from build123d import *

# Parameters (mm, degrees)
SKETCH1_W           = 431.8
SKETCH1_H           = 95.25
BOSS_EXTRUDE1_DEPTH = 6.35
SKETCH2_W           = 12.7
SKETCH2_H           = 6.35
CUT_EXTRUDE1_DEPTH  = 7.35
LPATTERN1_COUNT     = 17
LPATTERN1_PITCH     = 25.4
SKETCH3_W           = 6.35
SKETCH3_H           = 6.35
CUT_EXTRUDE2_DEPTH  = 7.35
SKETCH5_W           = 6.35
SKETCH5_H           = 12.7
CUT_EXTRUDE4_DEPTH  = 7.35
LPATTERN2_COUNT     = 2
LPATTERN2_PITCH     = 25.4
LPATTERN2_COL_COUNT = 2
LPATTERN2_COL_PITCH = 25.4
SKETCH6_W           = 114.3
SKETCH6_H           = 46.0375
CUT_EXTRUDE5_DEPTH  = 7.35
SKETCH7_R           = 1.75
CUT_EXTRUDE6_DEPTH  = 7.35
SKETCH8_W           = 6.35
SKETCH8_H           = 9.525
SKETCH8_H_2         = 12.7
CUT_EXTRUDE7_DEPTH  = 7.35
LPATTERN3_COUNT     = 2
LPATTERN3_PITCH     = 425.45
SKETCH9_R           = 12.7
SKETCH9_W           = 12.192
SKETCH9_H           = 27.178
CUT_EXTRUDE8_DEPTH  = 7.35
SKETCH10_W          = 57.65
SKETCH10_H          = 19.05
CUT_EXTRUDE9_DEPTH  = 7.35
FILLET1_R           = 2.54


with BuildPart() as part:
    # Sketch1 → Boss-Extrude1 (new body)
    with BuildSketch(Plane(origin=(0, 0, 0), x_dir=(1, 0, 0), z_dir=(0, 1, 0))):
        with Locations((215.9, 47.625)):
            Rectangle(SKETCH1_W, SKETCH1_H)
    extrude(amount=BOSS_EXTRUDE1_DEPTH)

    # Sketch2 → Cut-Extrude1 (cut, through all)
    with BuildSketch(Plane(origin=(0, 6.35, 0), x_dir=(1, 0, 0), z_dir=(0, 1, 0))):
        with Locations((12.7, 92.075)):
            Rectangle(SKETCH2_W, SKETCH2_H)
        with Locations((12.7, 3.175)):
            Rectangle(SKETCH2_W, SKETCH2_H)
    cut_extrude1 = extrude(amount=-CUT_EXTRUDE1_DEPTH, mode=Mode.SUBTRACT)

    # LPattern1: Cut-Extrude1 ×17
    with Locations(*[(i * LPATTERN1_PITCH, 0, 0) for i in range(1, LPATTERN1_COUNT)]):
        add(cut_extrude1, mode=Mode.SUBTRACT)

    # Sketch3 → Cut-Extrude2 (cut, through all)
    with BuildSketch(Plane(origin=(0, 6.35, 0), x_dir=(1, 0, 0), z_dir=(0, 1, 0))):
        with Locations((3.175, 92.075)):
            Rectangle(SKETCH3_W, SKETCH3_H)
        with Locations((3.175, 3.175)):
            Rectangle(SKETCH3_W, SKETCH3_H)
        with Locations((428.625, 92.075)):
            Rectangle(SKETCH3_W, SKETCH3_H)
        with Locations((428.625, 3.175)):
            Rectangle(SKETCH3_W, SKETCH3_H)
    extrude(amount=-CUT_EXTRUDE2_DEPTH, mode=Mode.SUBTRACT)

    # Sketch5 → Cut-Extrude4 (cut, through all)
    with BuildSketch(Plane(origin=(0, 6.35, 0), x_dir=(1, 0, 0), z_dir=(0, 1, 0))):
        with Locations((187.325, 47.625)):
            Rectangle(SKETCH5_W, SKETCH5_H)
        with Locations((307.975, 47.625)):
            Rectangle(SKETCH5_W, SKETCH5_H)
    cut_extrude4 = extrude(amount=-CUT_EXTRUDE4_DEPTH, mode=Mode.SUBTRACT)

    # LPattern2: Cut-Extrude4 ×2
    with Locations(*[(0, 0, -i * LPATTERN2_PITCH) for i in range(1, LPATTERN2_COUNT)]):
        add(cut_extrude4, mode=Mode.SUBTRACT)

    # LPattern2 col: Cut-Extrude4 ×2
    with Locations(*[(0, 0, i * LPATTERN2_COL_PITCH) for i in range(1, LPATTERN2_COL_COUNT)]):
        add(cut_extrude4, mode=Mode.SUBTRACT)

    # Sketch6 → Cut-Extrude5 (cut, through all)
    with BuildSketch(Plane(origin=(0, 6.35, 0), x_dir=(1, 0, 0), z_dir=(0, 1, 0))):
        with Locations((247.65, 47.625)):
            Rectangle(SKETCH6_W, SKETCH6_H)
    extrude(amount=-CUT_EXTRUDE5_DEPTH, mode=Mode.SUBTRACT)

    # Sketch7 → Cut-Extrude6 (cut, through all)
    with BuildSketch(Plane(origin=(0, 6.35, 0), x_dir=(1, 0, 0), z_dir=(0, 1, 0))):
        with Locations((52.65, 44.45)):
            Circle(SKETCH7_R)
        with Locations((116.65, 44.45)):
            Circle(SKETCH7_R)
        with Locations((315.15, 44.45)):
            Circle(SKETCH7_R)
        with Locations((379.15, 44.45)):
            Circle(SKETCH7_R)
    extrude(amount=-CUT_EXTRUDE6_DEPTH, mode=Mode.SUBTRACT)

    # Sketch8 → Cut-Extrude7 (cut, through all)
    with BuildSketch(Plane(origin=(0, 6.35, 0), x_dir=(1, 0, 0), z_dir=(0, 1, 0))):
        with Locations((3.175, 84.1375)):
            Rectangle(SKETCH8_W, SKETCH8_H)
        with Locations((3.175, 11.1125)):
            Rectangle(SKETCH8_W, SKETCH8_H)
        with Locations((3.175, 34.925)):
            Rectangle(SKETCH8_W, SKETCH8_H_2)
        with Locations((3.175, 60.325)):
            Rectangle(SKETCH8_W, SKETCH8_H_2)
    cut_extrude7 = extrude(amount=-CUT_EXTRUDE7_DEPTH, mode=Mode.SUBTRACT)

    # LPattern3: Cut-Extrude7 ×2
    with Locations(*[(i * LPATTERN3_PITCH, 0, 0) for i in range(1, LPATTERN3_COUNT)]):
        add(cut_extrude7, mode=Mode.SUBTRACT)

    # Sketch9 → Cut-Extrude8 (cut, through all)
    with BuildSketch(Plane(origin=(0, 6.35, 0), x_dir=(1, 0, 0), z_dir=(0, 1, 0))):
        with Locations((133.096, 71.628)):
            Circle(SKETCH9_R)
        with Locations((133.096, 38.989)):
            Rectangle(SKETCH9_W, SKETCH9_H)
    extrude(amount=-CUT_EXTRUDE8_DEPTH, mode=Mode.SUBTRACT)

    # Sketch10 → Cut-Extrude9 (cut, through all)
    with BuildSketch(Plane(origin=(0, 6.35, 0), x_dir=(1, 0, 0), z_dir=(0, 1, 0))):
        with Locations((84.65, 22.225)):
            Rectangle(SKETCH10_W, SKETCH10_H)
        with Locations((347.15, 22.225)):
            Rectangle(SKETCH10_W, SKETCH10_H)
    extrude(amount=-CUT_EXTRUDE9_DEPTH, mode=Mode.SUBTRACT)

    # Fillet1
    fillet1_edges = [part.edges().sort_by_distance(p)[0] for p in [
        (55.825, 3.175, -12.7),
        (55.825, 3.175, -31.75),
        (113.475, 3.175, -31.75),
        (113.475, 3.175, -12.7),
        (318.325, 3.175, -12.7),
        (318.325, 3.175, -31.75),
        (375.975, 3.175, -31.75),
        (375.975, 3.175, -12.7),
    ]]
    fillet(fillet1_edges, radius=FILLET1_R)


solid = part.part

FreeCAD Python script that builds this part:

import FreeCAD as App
import Part
import Sketcher

V = App.Vector
Q = App.Units.Quantity


def edges_at(feature, points):
    """Names of the edges that pass closest to the given points."""
    edges = feature.Shape.Edges
    near = lambda p: min(range(len(edges)), key=lambda i: edges[i].distToShape(Part.Vertex(*p))[0])
    return sorted({f"Edge{near(p) + 1}" for p in points})


def add_polygon(sketch, points):
    """Adds a closed chain of lines whose ends are joined by coincident constraints."""
    first, n = sketch.GeometryCount, len(points)
    for a, b in zip(points, points[1:] + points[:1]):
        sketch.addGeometry(Part.LineSegment(App.Vector(*a, 0), App.Vector(*b, 0)), False)
    for i in range(n):
        sketch.addConstraint(Sketcher.Constraint("Coincident", first + i, 2, first + (i + 1) % n, 1))

doc = App.newDocument("Part")
body = doc.addObject("PartDesign::Body", "Body")

# Sketch on XZ plane
sketch1 = body.newObject("Sketcher::SketchObject", "Sketch")
sketch1.AttachmentSupport = (doc.getObject("XZ_Plane"), [""])
sketch1.MapMode = "FlatFace"
add_polygon(sketch1, [(0, -95), (0, 0), (432, 0), (432, -95)])  # lines 0-3
sketch1.addConstraint(Sketcher.Constraint("Vertical", 0))
sketch1.addConstraint(Sketcher.Constraint("Horizontal", 1))
sketch1.addConstraint(Sketcher.Constraint("Vertical", 2))
sketch1.addConstraint(Sketcher.Constraint("Horizontal", 3))
sketch1.addConstraint(Sketcher.Constraint("Coincident", 0, 2, -1, 1))
sketch1.addConstraint(Sketcher.Constraint("DistanceX", 1, 1, 1, 2, Q("17 in")))
sketch1.addConstraint(Sketcher.Constraint("DistanceY", 0, 1, 0, 2, Q("3.75 in")))
pad1 = body.newObject("PartDesign::Pad", "Pad")
pad1.Profile = sketch1
pad1.Length = Q("0.25 in")
pad1.Reversed = True

# Sketch on XZ plane
sketch2 = body.newObject("Sketcher::SketchObject", "Sketch001")
sketch2.AttachmentSupport = (doc.getObject("XZ_Plane"), [""])
sketch2.MapMode = "FlatFace"
sketch2.AttachmentOffset = App.Placement(V(0, 0, -0.25 * 25.4), App.Rotation())
add_polygon(sketch2, [(6, -95), (6, -89), (19, -89), (19, -95)])  # lines 0-3
add_polygon(sketch2, [(6, -6), (6, 0), (19, 0), (19, -6)])  # lines 4-7
sketch2.addConstraint(Sketcher.Constraint("Vertical", 0))
sketch2.addConstraint(Sketcher.Constraint("Horizontal", 1))
sketch2.addConstraint(Sketcher.Constraint("Vertical", 2))
sketch2.addConstraint(Sketcher.Constraint("Horizontal", 3))
sketch2.addConstraint(Sketcher.Constraint("Vertical", 4))
sketch2.addConstraint(Sketcher.Constraint("Horizontal", 5))
sketch2.addConstraint(Sketcher.Constraint("Vertical", 6))
sketch2.addConstraint(Sketcher.Constraint("Horizontal", 7))
sketch2.addConstraint(Sketcher.Constraint("PointOnObject", 4, 2, -1))
sketch2.addConstraint(Sketcher.Constraint("Vertical", 3, 2, 4, 2))
sketch2.addConstraint(Sketcher.Constraint("Vertical", 2, 2, 5, 2))
sketch2.addConstraint(Sketcher.Constraint("Equal", 2, 4))
sketch2.addConstraint(Sketcher.Constraint("DistanceX", 1, 1, 1, 2, Q("0.5 in")))
sketch2.addConstraint(Sketcher.Constraint("DistanceY", 0, 1, 0, 2, Q("0.25 in")))
sketch2.addConstraint(Sketcher.Constraint("DistanceY", 0, 2, -1, 1, Q("3.5 in")))
sketch2.addConstraint(Sketcher.Constraint("DistanceX", -1, 1, 0, 2, Q("0.25 in")))
pocket1 = body.newObject("PartDesign::Pocket", "Pocket")
pocket1.Profile = sketch2
pocket1.Type = "ThroughAll"
pocket1.Reversed = True
doc.recompute()

linearpattern = body.newObject("PartDesign::LinearPattern", "LinearPattern")
linearpattern.Originals = [pocket1]
linearpattern.Direction = (doc.getObject("X_Axis"), [""])
linearpattern.Mode = "offset"
linearpattern.Offset = Q("1 in")
linearpattern.Occurrences = 17
body.Tip = linearpattern

# Sketch on XZ plane
sketch3 = body.newObject("Sketcher::SketchObject", "Sketch002")
sketch3.AttachmentSupport = (doc.getObject("XZ_Plane"), [""])
sketch3.MapMode = "FlatFace"
sketch3.AttachmentOffset = App.Placement(V(0, 0, -0.25 * 25.4), App.Rotation())
add_polygon(sketch3, [(0, -95), (0, -89), (6, -89), (6, -95)])  # lines 0-3
add_polygon(sketch3, [(0, -6), (0, 0), (6, 0), (6, -6)])  # lines 4-7
add_polygon(sketch3, [(425, -95), (425, -89), (432, -89), (432, -95)])  # lines 8-11
add_polygon(sketch3, [(425, -6), (425, 0), (432, 0), (432, -6)])  # lines 12-15
sketch3.addConstraint(Sketcher.Constraint("Vertical", 0))
sketch3.addConstraint(Sketcher.Constraint("Horizontal", 1))
sketch3.addConstraint(Sketcher.Constraint("Vertical", 2))
sketch3.addConstraint(Sketcher.Constraint("Horizontal", 3))
sketch3.addConstraint(Sketcher.Constraint("Vertical", 4))
sketch3.addConstraint(Sketcher.Constraint("Horizontal", 5))
sketch3.addConstraint(Sketcher.Constraint("Vertical", 6))
sketch3.addConstraint(Sketcher.Constraint("Horizontal", 7))
sketch3.addConstraint(Sketcher.Constraint("Vertical", 8))
sketch3.addConstraint(Sketcher.Constraint("Horizontal", 9))
sketch3.addConstraint(Sketcher.Constraint("Vertical", 10))
sketch3.addConstraint(Sketcher.Constraint("Horizontal", 11))
sketch3.addConstraint(Sketcher.Constraint("Vertical", 12))
sketch3.addConstraint(Sketcher.Constraint("Horizontal", 13))
sketch3.addConstraint(Sketcher.Constraint("Vertical", 14))
sketch3.addConstraint(Sketcher.Constraint("Horizontal", 15))
sketch3.addConstraint(Sketcher.Constraint("Coincident", 4, 2, -1, 1))
sketch3.addConstraint(Sketcher.Constraint("PointOnObject", 0, 2, -2))
sketch3.addConstraint(Sketcher.Constraint("PointOnObject", 12, 2, -1))
sketch3.addConstraint(Sketcher.Constraint("Horizontal", 1, 2, 8, 2))
sketch3.addConstraint(Sketcher.Constraint("Horizontal", 3, 2, 10, 2))
sketch3.addConstraint(Sketcher.Constraint("Horizontal", 7, 2, 14, 2))
sketch3.addConstraint(Sketcher.Constraint("Vertical", 2, 2, 5, 2))
sketch3.addConstraint(Sketcher.Constraint("Vertical", 11, 2, 12, 2))
sketch3.addConstraint(Sketcher.Constraint("Vertical", 10, 2, 13, 2))
sketch3.addConstraint(Sketcher.Constraint("Equal", 7, 9))
sketch3.addConstraint(Sketcher.Constraint("Equal", 15, 0))
sketch3.addConstraint(Sketcher.Constraint("Equal", 2, 4))
sketch3.addConstraint(Sketcher.Constraint("DistanceX", -1, 1, 9, 2, Q("17 in")))
sketch3.addConstraint(Sketcher.Constraint("DistanceX", 1, 1, 1, 2, Q("0.25 in")))
sketch3.addConstraint(Sketcher.Constraint("DistanceY", 0, 2, -1, 1, Q("3.5 in")))
pocket2 = body.newObject("PartDesign::Pocket", "Pocket001")
pocket2.Profile = sketch3
pocket2.Type = "ThroughAll"
pocket2.Reversed = True

# Sketch on XZ plane
sketch4 = body.newObject("Sketcher::SketchObject", "Sketch003")
sketch4.AttachmentSupport = (doc.getObject("XZ_Plane"), [""])
sketch4.MapMode = "FlatFace"
sketch4.AttachmentOffset = App.Placement(V(0, 0, -0.25 * 25.4), App.Rotation())
add_polygon(sketch4, [(184, -54), (184, -41), (190, -41), (190, -54)])  # lines 0-3
add_polygon(sketch4, [(305, -54), (305, -41), (311, -41), (311, -54)])  # lines 4-7
sketch4.addConstraint(Sketcher.Constraint("Vertical", 0))
sketch4.addConstraint(Sketcher.Constraint("Horizontal", 1))
sketch4.addConstraint(Sketcher.Constraint("Vertical", 2))
sketch4.addConstraint(Sketcher.Constraint("Horizontal", 3))
sketch4.addConstraint(Sketcher.Constraint("Vertical", 4))
sketch4.addConstraint(Sketcher.Constraint("Horizontal", 5))
sketch4.addConstraint(Sketcher.Constraint("Vertical", 6))
sketch4.addConstraint(Sketcher.Constraint("Horizontal", 7))
sketch4.addConstraint(Sketcher.Constraint("Horizontal", 1, 2, 4, 2))
sketch4.addConstraint(Sketcher.Constraint("Horizontal", 3, 2, 6, 2))
sketch4.addConstraint(Sketcher.Constraint("Equal", 3, 5))
sketch4.addConstraint(Sketcher.Constraint("DistanceY", 0, 1, 0, 2, Q("0.5 in")))
sketch4.addConstraint(Sketcher.Constraint("DistanceX", -1, 1, 4, 2, Q("12 in")))
sketch4.addConstraint(Sketcher.Constraint("DistanceX", 0, 2, 5, 2, Q("5 in")))
sketch4.addConstraint(Sketcher.Constraint("DistanceX", 1, 1, 1, 2, Q("0.25 in")))
sketch4.addConstraint(Sketcher.Constraint("DistanceY", 0, 2, -1, 1, Q("1.625 in")))
pocket3 = body.newObject("PartDesign::Pocket", "Pocket002")
pocket3.Profile = sketch4
pocket3.Type = "ThroughAll"
pocket3.Reversed = True
doc.recompute()

linearpattern2 = body.newObject("PartDesign::LinearPattern", "LinearPattern001")
linearpattern2.Originals = [pocket3]
linearpattern2.Direction = (doc.getObject("Z_Axis"), [""])
linearpattern2.Mode = "offset"
linearpattern2.Offset = Q("1 in")
linearpattern2.Occurrences = 2
linearpattern2.Reversed = True
body.Tip = linearpattern2
doc.recompute()

linearpattern3 = body.newObject("PartDesign::LinearPattern", "LinearPattern002")
linearpattern3.Originals = [pocket3]
linearpattern3.Direction = (doc.getObject("Z_Axis"), [""])
linearpattern3.Mode = "offset"
linearpattern3.Offset = Q("1 in")
linearpattern3.Occurrences = 2
body.Tip = linearpattern3

# Sketch on XZ plane
sketch5 = body.newObject("Sketcher::SketchObject", "Sketch004")
sketch5.AttachmentSupport = (doc.getObject("XZ_Plane"), [""])
sketch5.MapMode = "FlatFace"
sketch5.AttachmentOffset = App.Placement(V(0, 0, -0.25 * 25.4), App.Rotation())
add_polygon(sketch5, [(190, -71), (190, -25), (305, -25), (305, -71)])  # lines 0-3
sketch5.addConstraint(Sketcher.Constraint("Vertical", 0))
sketch5.addConstraint(Sketcher.Constraint("Horizontal", 1))
sketch5.addConstraint(Sketcher.Constraint("Vertical", 2))
sketch5.addConstraint(Sketcher.Constraint("Horizontal", 3))
sketch5.addConstraint(Sketcher.Constraint("DistanceX", 1, 1, 1, 2, Q("4.5 in")))
sketch5.addConstraint(Sketcher.Constraint("DistanceX", -1, 1, 1, 2, Q("12 in")))
sketch5.addConstraint(Sketcher.Constraint("DistanceY", 0, 1, 0, 2, Q("1.8125 in")))
sketch5.addConstraint(Sketcher.Constraint("DistanceY", 0, 2, -1, 1, Q("0.96875 in")))
pocket4 = body.newObject("PartDesign::Pocket", "Pocket003")
pocket4.Profile = sketch5
pocket4.Type = "ThroughAll"
pocket4.Reversed = True

# Sketch on XZ plane
sketch6 = body.newObject("Sketcher::SketchObject", "Sketch005")
sketch6.AttachmentSupport = (doc.getObject("XZ_Plane"), [""])
sketch6.MapMode = "FlatFace"
sketch6.AttachmentOffset = App.Placement(V(0, 0, -0.25 * 25.4), App.Rotation())
sketch6.addGeometry(Part.Circle(V(52.6, -44.5, 0), V(0, 0, 1), 1.8), False)
sketch6.addGeometry(Part.Circle(V(116.7, -44.5, 0), V(0, 0, 1), 1.8), False)
sketch6.addGeometry(Part.Circle(V(315.1, -44.5, 0), V(0, 0, 1), 1.8), False)
sketch6.addGeometry(Part.Circle(V(379.1, -44.5, 0), V(0, 0, 1), 1.8), False)
sketch6.addConstraint(Sketcher.Constraint("Equal", 0, 1))
sketch6.addConstraint(Sketcher.Constraint("Equal", 1, 2))
sketch6.addConstraint(Sketcher.Constraint("Equal", 2, 3))
sketch6.addConstraint(Sketcher.Constraint("Horizontal", 0, 3, 1, 3))
sketch6.addConstraint(Sketcher.Constraint("Horizontal", 1, 3, 2, 3))
sketch6.addConstraint(Sketcher.Constraint("Horizontal", 2, 3, 3, 3))
sketch6.addConstraint(Sketcher.Constraint("Diameter", 0, Q("3.5 mm")))
sketch6.addConstraint(Sketcher.Constraint("DistanceY", 0, 3, -1, 1, Q("1.75 in")))
sketch6.addConstraint(Sketcher.Constraint("DistanceX", -1, 1, 0, 3, Q("52.65 mm")))
sketch6.addConstraint(Sketcher.Constraint("DistanceX", -1, 1, 1, 3, Q("116.65 mm")))
sketch6.addConstraint(Sketcher.Constraint("DistanceX", -1, 1, 2, 3, Q("315.15 mm")))
sketch6.addConstraint(Sketcher.Constraint("DistanceX", -1, 1, 3, 3, Q("379.15 mm")))
pocket5 = body.newObject("PartDesign::Pocket", "Pocket004")
pocket5.Profile = sketch6
pocket5.Type = "ThroughAll"
pocket5.Reversed = True

# Sketch on XZ plane
sketch7 = body.newObject("Sketcher::SketchObject", "Sketch006")
sketch7.AttachmentSupport = (doc.getObject("XZ_Plane"), [""])
sketch7.MapMode = "FlatFace"
sketch7.AttachmentOffset = App.Placement(V(0, 0, -0.25 * 25.4), App.Rotation())
add_polygon(sketch7, [(0, -89), (0, -79), (6, -79), (6, -89)])  # lines 0-3
add_polygon(sketch7, [(0, -16), (0, -6), (6, -6), (6, -16)])  # lines 4-7
add_polygon(sketch7, [(0, -41), (0, -29), (6, -29), (6, -41)])  # lines 8-11
add_polygon(sketch7, [(0, -67), (0, -54), (6, -54), (6, -67)])  # lines 12-15
sketch7.addConstraint(Sketcher.Constraint("Vertical", 0))
sketch7.addConstraint(Sketcher.Constraint("Horizontal", 1))
sketch7.addConstraint(Sketcher.Constraint("Vertical", 2))
sketch7.addConstraint(Sketcher.Constraint("Horizontal", 3))
sketch7.addConstraint(Sketcher.Constraint("Vertical", 4))
sketch7.addConstraint(Sketcher.Constraint("Horizontal", 5))
sketch7.addConstraint(Sketcher.Constraint("Vertical", 6))
sketch7.addConstraint(Sketcher.Constraint("Horizontal", 7))
sketch7.addConstraint(Sketcher.Constraint("Vertical", 8))
sketch7.addConstraint(Sketcher.Constraint("Horizontal", 9))
sketch7.addConstraint(Sketcher.Constraint("Vertical", 10))
sketch7.addConstraint(Sketcher.Constraint("Horizontal", 11))
sketch7.addConstraint(Sketcher.Constraint("Vertical", 12))
sketch7.addConstraint(Sketcher.Constraint("Horizontal", 13))
sketch7.addConstraint(Sketcher.Constraint("Vertical", 14))
sketch7.addConstraint(Sketcher.Constraint("Horizontal", 15))
sketch7.addConstraint(Sketcher.Constraint("PointOnObject", 0, 2, -2))
sketch7.addConstraint(Sketcher.Constraint("PointOnObject", 4, 2, -2))
sketch7.addConstraint(Sketcher.Constraint("PointOnObject", 8, 2, -2))
sketch7.addConstraint(Sketcher.Constraint("PointOnObject", 12, 2, -2))
sketch7.addConstraint(Sketcher.Constraint("Vertical", 2, 2, 5, 2))
sketch7.addConstraint(Sketcher.Constraint("Vertical", 6, 2, 9, 2))
sketch7.addConstraint(Sketcher.Constraint("Vertical", 10, 2, 13, 2))
sketch7.addConstraint(Sketcher.Constraint("Equal", 2, 4))
sketch7.addConstraint(Sketcher.Constraint("Equal", 10, 12))
sketch7.addConstraint(Sketcher.Constraint("DistanceY", 8, 1, 8, 2, Q("0.5 in")))
sketch7.addConstraint(Sketcher.Constraint("DistanceY", 0, 2, 8, 2, Q("2 in")))
sketch7.addConstraint(Sketcher.Constraint("DistanceY", 10, 2, 6, 2, Q("1 in")))
sketch7.addConstraint(Sketcher.Constraint("DistanceY", 0, 2, 12, 2, Q("1 in")))
sketch7.addConstraint(Sketcher.Constraint("DistanceX", 1, 1, 1, 2, Q("0.25 in")))
sketch7.addConstraint(Sketcher.Constraint("DistanceY", 2, 2, -1, 1, Q("3.5 in")))
sketch7.addConstraint(Sketcher.Constraint("DistanceY", 0, 1, 0, 2, Q("0.375 in")))
pocket6 = body.newObject("PartDesign::Pocket", "Pocket005")
pocket6.Profile = sketch7
pocket6.Type = "ThroughAll"
pocket6.Reversed = True
doc.recompute()

linearpattern4 = body.newObject("PartDesign::LinearPattern", "LinearPattern003")
linearpattern4.Originals = [pocket6]
linearpattern4.Direction = (doc.getObject("X_Axis"), [""])
linearpattern4.Mode = "offset"
linearpattern4.Offset = Q("16.75 in")
linearpattern4.Occurrences = 2
body.Tip = linearpattern4

# Sketch on XZ plane
sketch8 = body.newObject("Sketcher::SketchObject", "Sketch007")
sketch8.AttachmentSupport = (doc.getObject("XZ_Plane"), [""])
sketch8.MapMode = "FlatFace"
sketch8.AttachmentOffset = App.Placement(V(0, 0, -0.25 * 25.4), App.Rotation())
sketch8.addGeometry(Part.Circle(V(133, -72, 0), V(0, 0, 1), 13), False)  # 0
add_polygon(sketch8, [(127, -53), (127, -25), (139, -25), (139, -53)])  # lines 1-4
sketch8.addConstraint(Sketcher.Constraint("Vertical", 1))
sketch8.addConstraint(Sketcher.Constraint("Horizontal", 2))
sketch8.addConstraint(Sketcher.Constraint("Vertical", 3))
sketch8.addConstraint(Sketcher.Constraint("Horizontal", 4))
sketch8.addConstraint(Sketcher.Constraint("Diameter", 0, Q("1 in")))
sketch8.addConstraint(Sketcher.Constraint("DistanceX", -1, 1, 1, 2, Q("5 in")))
sketch8.addConstraint(Sketcher.Constraint("DistanceY", 1, 2, -1, 1, Q("1 in")))
sketch8.addConstraint(Sketcher.Constraint("DistanceX", 2, 1, 2, 2, Q("0.48 in")))
sketch8.addConstraint(Sketcher.Constraint("DistanceY", 1, 1, 1, 2, Q("1.07 in")))
sketch8.addConstraint(Sketcher.Constraint("DistanceX", -1, 1, 0, 3, Q("5.24 in")))
sketch8.addConstraint(Sketcher.Constraint("DistanceY", 0, 3, -1, 1, Q("2.82 in")))
pocket7 = body.newObject("PartDesign::Pocket", "Pocket006")
pocket7.Profile = sketch8
pocket7.Type = "ThroughAll"
pocket7.Reversed = True

# Sketch on XZ plane
sketch9 = body.newObject("Sketcher::SketchObject", "Sketch008")
sketch9.AttachmentSupport = (doc.getObject("XZ_Plane"), [""])
sketch9.MapMode = "FlatFace"
sketch9.AttachmentOffset = App.Placement(V(0, 0, -0.25 * 25.4), App.Rotation())
add_polygon(sketch9, [(56, -32), (56, -13), (113, -13), (113, -32)])  # lines 0-3
add_polygon(sketch9, [(318, -32), (318, -13), (376, -13), (376, -32)])  # lines 4-7
sketch9.addConstraint(Sketcher.Constraint("Vertical", 0))
sketch9.addConstraint(Sketcher.Constraint("Horizontal", 1))
sketch9.addConstraint(Sketcher.Constraint("Vertical", 2))
sketch9.addConstraint(Sketcher.Constraint("Horizontal", 3))
sketch9.addConstraint(Sketcher.Constraint("Vertical", 4))
sketch9.addConstraint(Sketcher.Constraint("Horizontal", 5))
sketch9.addConstraint(Sketcher.Constraint("Vertical", 6))
sketch9.addConstraint(Sketcher.Constraint("Horizontal", 7))
sketch9.addConstraint(Sketcher.Constraint("Horizontal", 1, 2, 4, 2))
sketch9.addConstraint(Sketcher.Constraint("Horizontal", 3, 2, 6, 2))
sketch9.addConstraint(Sketcher.Constraint("Equal", 3, 5))
sketch9.addConstraint(Sketcher.Constraint("DistanceY", 0, 1, 0, 2, Q("0.75 in")))
sketch9.addConstraint(Sketcher.Constraint("DistanceY", 0, 2, -1, 1, Q("0.5 in")))
sketch9.addConstraint(Sketcher.Constraint("DistanceX", 1, 1, 1, 2, Q("57.65 mm")))
sketch9.addConstraint(Sketcher.Constraint("DistanceX", -1, 1, 0, 2, Q("55.825 mm")))
sketch9.addConstraint(Sketcher.Constraint("DistanceX", -1, 1, 4, 2, Q("318.325 mm")))
pocket8 = body.newObject("PartDesign::Pocket", "Pocket007")
pocket8.Profile = sketch9
pocket8.Type = "ThroughAll"
pocket8.Reversed = True
doc.recompute()

fillet = body.newObject("PartDesign::Fillet", "Fillet")
fillet.Base = (pocket8, edges_at(pocket8, [
    (55.825, 3.175, -12.7),
    (55.825, 3.175, -31.75),
    (113.475, 3.175, -31.75),
    (113.475, 3.175, -12.7),
    (318.325, 3.175, -12.7),
    (318.325, 3.175, -31.75),
    (375.975, 3.175, -31.75),
    (375.975, 3.175, -12.7),
]))
fillet.Radius = Q("0.1 in")

doc.recompute()
